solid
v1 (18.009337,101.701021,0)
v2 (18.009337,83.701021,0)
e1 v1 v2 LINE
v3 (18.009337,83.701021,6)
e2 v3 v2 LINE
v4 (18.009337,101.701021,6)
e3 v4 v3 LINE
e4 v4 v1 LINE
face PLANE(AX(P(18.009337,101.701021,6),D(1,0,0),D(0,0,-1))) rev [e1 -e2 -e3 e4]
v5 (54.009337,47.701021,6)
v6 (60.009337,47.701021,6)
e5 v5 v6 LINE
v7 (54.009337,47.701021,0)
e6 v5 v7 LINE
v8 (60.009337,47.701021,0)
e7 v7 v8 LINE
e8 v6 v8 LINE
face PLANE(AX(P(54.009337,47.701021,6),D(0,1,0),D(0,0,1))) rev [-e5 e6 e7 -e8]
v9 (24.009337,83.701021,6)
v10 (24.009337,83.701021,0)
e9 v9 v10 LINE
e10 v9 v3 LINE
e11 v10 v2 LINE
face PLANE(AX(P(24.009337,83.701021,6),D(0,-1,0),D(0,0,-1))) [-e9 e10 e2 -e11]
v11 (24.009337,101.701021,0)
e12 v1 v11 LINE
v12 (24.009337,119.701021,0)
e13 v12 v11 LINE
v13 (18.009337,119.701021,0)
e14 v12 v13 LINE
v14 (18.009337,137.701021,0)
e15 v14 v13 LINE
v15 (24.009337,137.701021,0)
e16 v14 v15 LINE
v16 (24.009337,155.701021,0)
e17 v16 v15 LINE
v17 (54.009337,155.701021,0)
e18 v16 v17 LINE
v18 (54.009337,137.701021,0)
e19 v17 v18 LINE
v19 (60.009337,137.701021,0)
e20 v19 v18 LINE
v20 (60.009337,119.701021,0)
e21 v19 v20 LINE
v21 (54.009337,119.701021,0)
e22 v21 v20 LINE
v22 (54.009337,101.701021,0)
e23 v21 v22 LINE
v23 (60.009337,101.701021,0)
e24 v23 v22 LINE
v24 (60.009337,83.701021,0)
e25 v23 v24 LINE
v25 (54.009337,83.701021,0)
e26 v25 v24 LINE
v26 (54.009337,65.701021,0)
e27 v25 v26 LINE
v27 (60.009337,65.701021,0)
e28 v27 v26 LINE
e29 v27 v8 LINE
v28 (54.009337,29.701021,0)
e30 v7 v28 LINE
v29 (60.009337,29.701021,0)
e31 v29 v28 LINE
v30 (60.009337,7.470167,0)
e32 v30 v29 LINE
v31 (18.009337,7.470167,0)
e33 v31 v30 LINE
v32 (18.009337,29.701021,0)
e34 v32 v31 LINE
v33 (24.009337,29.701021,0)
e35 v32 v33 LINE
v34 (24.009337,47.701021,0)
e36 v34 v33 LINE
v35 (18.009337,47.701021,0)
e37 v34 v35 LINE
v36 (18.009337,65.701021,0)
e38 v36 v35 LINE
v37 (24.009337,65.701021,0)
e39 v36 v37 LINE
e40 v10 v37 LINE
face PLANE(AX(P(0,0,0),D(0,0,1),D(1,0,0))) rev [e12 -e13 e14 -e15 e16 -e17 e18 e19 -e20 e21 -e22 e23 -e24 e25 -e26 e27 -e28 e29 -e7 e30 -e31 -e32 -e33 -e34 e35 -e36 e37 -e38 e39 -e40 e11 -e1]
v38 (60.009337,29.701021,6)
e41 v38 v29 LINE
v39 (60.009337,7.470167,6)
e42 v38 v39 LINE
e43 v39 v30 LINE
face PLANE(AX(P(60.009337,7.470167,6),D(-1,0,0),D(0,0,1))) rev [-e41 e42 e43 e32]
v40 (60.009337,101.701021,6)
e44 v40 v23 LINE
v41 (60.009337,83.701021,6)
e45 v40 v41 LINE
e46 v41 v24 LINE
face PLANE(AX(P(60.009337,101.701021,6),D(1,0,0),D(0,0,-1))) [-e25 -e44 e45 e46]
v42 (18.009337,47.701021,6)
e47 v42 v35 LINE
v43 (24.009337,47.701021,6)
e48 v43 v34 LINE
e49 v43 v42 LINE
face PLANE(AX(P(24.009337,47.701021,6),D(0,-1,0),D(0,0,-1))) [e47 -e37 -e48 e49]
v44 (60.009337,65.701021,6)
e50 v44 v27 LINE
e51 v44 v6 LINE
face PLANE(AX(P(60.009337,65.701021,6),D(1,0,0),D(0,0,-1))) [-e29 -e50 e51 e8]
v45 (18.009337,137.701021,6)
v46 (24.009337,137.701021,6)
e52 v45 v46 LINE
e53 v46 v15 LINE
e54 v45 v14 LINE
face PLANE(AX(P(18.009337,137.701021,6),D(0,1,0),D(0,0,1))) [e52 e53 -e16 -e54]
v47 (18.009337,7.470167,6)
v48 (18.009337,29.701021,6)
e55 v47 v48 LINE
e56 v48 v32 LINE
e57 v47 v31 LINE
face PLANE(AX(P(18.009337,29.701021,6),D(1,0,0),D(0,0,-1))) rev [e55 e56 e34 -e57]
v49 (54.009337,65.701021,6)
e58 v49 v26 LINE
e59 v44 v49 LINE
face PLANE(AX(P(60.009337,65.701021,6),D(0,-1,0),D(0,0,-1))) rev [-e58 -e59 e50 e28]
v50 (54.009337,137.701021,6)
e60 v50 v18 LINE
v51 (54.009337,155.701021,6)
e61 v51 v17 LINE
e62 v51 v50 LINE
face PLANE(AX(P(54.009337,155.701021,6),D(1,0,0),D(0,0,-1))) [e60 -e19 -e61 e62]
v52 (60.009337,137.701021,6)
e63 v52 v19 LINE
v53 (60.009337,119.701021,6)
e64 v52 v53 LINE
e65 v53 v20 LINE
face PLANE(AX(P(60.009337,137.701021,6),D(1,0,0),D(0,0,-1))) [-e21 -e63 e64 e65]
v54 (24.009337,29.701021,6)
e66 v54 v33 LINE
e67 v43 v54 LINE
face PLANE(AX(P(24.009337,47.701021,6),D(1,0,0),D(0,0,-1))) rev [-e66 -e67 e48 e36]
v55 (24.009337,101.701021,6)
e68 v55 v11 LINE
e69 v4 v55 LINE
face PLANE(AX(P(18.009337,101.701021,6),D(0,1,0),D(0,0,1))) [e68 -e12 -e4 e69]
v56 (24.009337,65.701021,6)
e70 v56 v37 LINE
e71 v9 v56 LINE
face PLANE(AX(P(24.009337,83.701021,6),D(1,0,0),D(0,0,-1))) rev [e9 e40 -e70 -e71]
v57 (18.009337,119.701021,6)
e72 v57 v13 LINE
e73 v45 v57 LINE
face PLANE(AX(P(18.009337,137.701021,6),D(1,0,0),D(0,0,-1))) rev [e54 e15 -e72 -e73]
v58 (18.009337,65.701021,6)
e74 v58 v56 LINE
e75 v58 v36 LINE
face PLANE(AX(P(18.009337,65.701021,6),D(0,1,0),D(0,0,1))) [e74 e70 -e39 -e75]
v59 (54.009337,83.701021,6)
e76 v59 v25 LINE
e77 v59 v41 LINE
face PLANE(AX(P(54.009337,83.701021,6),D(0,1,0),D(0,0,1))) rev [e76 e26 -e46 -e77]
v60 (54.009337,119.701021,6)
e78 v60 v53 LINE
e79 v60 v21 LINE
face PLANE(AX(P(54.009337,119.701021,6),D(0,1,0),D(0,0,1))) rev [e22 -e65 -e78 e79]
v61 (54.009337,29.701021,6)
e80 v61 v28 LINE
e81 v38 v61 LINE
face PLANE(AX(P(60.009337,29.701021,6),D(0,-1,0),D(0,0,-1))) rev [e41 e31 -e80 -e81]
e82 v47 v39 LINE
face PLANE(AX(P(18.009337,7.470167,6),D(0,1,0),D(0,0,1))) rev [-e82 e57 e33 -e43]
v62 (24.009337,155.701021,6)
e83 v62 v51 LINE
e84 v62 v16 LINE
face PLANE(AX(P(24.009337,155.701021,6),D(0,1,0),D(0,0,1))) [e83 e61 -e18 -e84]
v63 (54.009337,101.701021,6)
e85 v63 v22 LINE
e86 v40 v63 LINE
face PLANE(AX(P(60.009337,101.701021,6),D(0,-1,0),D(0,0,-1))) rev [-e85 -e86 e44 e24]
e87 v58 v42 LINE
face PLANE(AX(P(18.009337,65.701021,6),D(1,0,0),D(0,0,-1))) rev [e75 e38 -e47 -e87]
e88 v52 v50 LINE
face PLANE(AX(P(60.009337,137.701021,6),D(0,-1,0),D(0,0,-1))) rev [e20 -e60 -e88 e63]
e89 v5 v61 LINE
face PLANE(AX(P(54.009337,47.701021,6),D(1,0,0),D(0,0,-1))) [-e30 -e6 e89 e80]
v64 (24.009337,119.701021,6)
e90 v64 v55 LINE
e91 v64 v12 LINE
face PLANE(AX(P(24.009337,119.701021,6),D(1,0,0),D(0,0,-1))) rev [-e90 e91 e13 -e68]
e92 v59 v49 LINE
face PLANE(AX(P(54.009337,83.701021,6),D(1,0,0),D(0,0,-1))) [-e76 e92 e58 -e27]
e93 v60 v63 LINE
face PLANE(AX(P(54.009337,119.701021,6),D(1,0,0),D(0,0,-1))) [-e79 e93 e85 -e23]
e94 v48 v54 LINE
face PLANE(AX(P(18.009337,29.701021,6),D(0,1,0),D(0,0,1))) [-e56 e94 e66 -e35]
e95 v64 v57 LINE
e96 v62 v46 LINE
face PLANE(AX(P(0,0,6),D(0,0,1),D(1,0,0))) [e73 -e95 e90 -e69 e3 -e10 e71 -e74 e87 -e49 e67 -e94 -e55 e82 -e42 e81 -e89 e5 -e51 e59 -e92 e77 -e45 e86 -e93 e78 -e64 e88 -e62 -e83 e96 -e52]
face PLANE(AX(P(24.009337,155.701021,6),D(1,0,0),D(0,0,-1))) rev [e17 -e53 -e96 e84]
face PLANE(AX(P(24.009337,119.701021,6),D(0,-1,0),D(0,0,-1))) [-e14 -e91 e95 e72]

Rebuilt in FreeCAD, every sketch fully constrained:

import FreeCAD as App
import Part
import Sketcher
from FreeCAD import Vector


def add_polygon(sketch, points):
    """Adds a closed chain of lines whose ends are joined by coincident constraints."""
    first, n = sketch.GeometryCount, len(points)
    for a, b in zip(points, points[1:] + points[:1]):
        sketch.addGeometry(Part.LineSegment(App.Vector(*a, 0), App.Vector(*b, 0)), False)
    for i in range(n):
        sketch.addConstraint(Sketcher.Constraint("Coincident", first + i, 2, first + (i + 1) % n, 1))

doc = App.newDocument("Part")
body = doc.addObject("PartDesign::Body", "Body")

# Sketch on XY plane
sketch1 = body.newObject("Sketcher::SketchObject", "Sketch")
sketch1.AttachmentSupport = (doc.getObject("XY_Plane"), [""])
sketch1.MapMode = "FlatFace"
add_polygon(sketch1, [(60, 138), (54, 138), (54, 156), (24, 156), (24, 138), (18, 138), (18, 120), (24, 120), (24, 102), (18, 102), (18, 84), (24, 84), (24, 66), (18, 66), (18, 48), (24, 48), (24, 30), (18, 30), (18, 7), (60, 7), (60, 30), (54, 30), (54, 48), (60, 48), (60, 66), (54, 66), (54, 84), (60, 84), (60, 102), (54, 102), (54, 120), (60, 120)])  # lines 0-31
sketch1.addConstraint([
    Sketcher.Constraint("Horizontal", 0),
    Sketcher.Constraint("Vertical", 1),
    Sketcher.Constraint("Horizontal", 2),
    Sketcher.Constraint("Vertical", 3),
    Sketcher.Constraint("Horizontal", 4),
    Sketcher.Constraint("Vertical", 5),
    Sketcher.Constraint("Horizontal", 6),
    Sketcher.Constraint("Vertical", 7),
    Sketcher.Constraint("Horizontal", 8),
    Sketcher.Constraint("Vertical", 9),
    Sketcher.Constraint("Horizontal", 10),
    Sketcher.Constraint("Vertical", 11),
    Sketcher.Constraint("Horizontal", 12),
    Sketcher.Constraint("Vertical", 13),
    Sketcher.Constraint("Horizontal", 14),
    Sketcher.Constraint("Vertical", 15),
    Sketcher.Constraint("Horizontal", 16),
    Sketcher.Constraint("Vertical", 17),
    Sketcher.Constraint("Horizontal", 18),
    Sketcher.Constraint("Vertical", 19),
    Sketcher.Constraint("Horizontal", 20),
    Sketcher.Constraint("Vertical", 21),
    Sketcher.Constraint("Horizontal", 22),
    Sketcher.Constraint("Vertical", 23),
    Sketcher.Constraint("Horizontal", 24),
    Sketcher.Constraint("Vertical", 25),
    Sketcher.Constraint("Horizontal", 26),
    Sketcher.Constraint("Vertical", 27),
    Sketcher.Constraint("Horizontal", 28),
    Sketcher.Constraint("Vertical", 29),
    Sketcher.Constraint("Horizontal", 30),
    Sketcher.Constraint("Vertical", 31),
    Sketcher.Constraint("Horizontal", 0, 2, 3, 2),
    Sketcher.Constraint("Horizontal", 16, 2, 19, 2),
    Sketcher.Constraint("Horizontal", 14, 2, 21, 2),
    Sketcher.Constraint("Horizontal", 12, 2, 23, 2),
    Sketcher.Constraint("Horizontal", 10, 2, 25, 2),
    Sketcher.Constraint("Horizontal", 8, 2, 27, 2),
    Sketcher.Constraint("Horizontal", 6, 2, 29, 2),
    Sketcher.Constraint("Vertical", 3, 2, 6, 2),
    Sketcher.Constraint("Vertical", 5, 2, 8, 2),
    Sketcher.Constraint("Vertical", 7, 2, 10, 2),
    Sketcher.Constraint("Vertical", 9, 2, 12, 2),
    Sketcher.Constraint("Vertical", 11, 2, 14, 2),
    Sketcher.Constraint("Vertical", 13, 2, 16, 2),
    Sketcher.Constraint("Vertical", 1, 2, 20, 2),
    Sketcher.Constraint("Vertical", 19, 2, 22, 2),
    Sketcher.Constraint("Vertical", 21, 2, 24, 2),
    Sketcher.Constraint("Vertical", 23, 2, 26, 2),
    Sketcher.Constraint("Vertical", 25, 2, 28, 2),
    Sketcher.Constraint("Vertical", 27, 2, 30, 2),
    Sketcher.Constraint("Equal", 0, 4),
    Sketcher.Constraint("Equal", 3, 5),
    Sketcher.Constraint("Equal", 5, 7),
    Sketcher.Constraint("Equal", 7, 9),
    Sketcher.Constraint("Equal", 9, 11),
    Sketcher.Constraint("Equal", 11, 13),
    Sketcher.Constraint("Equal", 13, 15),
    Sketcher.Constraint("DistanceX", 0, 2, 0, 1, 6.0),
    Sketcher.Constraint("DistanceX", 2, 2, 2, 1, 30.0),
    Sketcher.Constraint("DistanceY", 1, 1, 1, 2, 18.0),
    Sketcher.Constraint("DistanceY", 17, 2, 17, 1, 22.230855),
    Sketcher.Constraint("DistanceY", -1, 1, 0, 2, 137.701021),
    Sketcher.Constraint("DistanceX", -1, 1, 0, 2, 54.009337),
])
pad1 = body.newObject("PartDesign::Pad", "Pad")
pad1.Profile = sketch1
pad1.Length = 6

doc.recompute()
